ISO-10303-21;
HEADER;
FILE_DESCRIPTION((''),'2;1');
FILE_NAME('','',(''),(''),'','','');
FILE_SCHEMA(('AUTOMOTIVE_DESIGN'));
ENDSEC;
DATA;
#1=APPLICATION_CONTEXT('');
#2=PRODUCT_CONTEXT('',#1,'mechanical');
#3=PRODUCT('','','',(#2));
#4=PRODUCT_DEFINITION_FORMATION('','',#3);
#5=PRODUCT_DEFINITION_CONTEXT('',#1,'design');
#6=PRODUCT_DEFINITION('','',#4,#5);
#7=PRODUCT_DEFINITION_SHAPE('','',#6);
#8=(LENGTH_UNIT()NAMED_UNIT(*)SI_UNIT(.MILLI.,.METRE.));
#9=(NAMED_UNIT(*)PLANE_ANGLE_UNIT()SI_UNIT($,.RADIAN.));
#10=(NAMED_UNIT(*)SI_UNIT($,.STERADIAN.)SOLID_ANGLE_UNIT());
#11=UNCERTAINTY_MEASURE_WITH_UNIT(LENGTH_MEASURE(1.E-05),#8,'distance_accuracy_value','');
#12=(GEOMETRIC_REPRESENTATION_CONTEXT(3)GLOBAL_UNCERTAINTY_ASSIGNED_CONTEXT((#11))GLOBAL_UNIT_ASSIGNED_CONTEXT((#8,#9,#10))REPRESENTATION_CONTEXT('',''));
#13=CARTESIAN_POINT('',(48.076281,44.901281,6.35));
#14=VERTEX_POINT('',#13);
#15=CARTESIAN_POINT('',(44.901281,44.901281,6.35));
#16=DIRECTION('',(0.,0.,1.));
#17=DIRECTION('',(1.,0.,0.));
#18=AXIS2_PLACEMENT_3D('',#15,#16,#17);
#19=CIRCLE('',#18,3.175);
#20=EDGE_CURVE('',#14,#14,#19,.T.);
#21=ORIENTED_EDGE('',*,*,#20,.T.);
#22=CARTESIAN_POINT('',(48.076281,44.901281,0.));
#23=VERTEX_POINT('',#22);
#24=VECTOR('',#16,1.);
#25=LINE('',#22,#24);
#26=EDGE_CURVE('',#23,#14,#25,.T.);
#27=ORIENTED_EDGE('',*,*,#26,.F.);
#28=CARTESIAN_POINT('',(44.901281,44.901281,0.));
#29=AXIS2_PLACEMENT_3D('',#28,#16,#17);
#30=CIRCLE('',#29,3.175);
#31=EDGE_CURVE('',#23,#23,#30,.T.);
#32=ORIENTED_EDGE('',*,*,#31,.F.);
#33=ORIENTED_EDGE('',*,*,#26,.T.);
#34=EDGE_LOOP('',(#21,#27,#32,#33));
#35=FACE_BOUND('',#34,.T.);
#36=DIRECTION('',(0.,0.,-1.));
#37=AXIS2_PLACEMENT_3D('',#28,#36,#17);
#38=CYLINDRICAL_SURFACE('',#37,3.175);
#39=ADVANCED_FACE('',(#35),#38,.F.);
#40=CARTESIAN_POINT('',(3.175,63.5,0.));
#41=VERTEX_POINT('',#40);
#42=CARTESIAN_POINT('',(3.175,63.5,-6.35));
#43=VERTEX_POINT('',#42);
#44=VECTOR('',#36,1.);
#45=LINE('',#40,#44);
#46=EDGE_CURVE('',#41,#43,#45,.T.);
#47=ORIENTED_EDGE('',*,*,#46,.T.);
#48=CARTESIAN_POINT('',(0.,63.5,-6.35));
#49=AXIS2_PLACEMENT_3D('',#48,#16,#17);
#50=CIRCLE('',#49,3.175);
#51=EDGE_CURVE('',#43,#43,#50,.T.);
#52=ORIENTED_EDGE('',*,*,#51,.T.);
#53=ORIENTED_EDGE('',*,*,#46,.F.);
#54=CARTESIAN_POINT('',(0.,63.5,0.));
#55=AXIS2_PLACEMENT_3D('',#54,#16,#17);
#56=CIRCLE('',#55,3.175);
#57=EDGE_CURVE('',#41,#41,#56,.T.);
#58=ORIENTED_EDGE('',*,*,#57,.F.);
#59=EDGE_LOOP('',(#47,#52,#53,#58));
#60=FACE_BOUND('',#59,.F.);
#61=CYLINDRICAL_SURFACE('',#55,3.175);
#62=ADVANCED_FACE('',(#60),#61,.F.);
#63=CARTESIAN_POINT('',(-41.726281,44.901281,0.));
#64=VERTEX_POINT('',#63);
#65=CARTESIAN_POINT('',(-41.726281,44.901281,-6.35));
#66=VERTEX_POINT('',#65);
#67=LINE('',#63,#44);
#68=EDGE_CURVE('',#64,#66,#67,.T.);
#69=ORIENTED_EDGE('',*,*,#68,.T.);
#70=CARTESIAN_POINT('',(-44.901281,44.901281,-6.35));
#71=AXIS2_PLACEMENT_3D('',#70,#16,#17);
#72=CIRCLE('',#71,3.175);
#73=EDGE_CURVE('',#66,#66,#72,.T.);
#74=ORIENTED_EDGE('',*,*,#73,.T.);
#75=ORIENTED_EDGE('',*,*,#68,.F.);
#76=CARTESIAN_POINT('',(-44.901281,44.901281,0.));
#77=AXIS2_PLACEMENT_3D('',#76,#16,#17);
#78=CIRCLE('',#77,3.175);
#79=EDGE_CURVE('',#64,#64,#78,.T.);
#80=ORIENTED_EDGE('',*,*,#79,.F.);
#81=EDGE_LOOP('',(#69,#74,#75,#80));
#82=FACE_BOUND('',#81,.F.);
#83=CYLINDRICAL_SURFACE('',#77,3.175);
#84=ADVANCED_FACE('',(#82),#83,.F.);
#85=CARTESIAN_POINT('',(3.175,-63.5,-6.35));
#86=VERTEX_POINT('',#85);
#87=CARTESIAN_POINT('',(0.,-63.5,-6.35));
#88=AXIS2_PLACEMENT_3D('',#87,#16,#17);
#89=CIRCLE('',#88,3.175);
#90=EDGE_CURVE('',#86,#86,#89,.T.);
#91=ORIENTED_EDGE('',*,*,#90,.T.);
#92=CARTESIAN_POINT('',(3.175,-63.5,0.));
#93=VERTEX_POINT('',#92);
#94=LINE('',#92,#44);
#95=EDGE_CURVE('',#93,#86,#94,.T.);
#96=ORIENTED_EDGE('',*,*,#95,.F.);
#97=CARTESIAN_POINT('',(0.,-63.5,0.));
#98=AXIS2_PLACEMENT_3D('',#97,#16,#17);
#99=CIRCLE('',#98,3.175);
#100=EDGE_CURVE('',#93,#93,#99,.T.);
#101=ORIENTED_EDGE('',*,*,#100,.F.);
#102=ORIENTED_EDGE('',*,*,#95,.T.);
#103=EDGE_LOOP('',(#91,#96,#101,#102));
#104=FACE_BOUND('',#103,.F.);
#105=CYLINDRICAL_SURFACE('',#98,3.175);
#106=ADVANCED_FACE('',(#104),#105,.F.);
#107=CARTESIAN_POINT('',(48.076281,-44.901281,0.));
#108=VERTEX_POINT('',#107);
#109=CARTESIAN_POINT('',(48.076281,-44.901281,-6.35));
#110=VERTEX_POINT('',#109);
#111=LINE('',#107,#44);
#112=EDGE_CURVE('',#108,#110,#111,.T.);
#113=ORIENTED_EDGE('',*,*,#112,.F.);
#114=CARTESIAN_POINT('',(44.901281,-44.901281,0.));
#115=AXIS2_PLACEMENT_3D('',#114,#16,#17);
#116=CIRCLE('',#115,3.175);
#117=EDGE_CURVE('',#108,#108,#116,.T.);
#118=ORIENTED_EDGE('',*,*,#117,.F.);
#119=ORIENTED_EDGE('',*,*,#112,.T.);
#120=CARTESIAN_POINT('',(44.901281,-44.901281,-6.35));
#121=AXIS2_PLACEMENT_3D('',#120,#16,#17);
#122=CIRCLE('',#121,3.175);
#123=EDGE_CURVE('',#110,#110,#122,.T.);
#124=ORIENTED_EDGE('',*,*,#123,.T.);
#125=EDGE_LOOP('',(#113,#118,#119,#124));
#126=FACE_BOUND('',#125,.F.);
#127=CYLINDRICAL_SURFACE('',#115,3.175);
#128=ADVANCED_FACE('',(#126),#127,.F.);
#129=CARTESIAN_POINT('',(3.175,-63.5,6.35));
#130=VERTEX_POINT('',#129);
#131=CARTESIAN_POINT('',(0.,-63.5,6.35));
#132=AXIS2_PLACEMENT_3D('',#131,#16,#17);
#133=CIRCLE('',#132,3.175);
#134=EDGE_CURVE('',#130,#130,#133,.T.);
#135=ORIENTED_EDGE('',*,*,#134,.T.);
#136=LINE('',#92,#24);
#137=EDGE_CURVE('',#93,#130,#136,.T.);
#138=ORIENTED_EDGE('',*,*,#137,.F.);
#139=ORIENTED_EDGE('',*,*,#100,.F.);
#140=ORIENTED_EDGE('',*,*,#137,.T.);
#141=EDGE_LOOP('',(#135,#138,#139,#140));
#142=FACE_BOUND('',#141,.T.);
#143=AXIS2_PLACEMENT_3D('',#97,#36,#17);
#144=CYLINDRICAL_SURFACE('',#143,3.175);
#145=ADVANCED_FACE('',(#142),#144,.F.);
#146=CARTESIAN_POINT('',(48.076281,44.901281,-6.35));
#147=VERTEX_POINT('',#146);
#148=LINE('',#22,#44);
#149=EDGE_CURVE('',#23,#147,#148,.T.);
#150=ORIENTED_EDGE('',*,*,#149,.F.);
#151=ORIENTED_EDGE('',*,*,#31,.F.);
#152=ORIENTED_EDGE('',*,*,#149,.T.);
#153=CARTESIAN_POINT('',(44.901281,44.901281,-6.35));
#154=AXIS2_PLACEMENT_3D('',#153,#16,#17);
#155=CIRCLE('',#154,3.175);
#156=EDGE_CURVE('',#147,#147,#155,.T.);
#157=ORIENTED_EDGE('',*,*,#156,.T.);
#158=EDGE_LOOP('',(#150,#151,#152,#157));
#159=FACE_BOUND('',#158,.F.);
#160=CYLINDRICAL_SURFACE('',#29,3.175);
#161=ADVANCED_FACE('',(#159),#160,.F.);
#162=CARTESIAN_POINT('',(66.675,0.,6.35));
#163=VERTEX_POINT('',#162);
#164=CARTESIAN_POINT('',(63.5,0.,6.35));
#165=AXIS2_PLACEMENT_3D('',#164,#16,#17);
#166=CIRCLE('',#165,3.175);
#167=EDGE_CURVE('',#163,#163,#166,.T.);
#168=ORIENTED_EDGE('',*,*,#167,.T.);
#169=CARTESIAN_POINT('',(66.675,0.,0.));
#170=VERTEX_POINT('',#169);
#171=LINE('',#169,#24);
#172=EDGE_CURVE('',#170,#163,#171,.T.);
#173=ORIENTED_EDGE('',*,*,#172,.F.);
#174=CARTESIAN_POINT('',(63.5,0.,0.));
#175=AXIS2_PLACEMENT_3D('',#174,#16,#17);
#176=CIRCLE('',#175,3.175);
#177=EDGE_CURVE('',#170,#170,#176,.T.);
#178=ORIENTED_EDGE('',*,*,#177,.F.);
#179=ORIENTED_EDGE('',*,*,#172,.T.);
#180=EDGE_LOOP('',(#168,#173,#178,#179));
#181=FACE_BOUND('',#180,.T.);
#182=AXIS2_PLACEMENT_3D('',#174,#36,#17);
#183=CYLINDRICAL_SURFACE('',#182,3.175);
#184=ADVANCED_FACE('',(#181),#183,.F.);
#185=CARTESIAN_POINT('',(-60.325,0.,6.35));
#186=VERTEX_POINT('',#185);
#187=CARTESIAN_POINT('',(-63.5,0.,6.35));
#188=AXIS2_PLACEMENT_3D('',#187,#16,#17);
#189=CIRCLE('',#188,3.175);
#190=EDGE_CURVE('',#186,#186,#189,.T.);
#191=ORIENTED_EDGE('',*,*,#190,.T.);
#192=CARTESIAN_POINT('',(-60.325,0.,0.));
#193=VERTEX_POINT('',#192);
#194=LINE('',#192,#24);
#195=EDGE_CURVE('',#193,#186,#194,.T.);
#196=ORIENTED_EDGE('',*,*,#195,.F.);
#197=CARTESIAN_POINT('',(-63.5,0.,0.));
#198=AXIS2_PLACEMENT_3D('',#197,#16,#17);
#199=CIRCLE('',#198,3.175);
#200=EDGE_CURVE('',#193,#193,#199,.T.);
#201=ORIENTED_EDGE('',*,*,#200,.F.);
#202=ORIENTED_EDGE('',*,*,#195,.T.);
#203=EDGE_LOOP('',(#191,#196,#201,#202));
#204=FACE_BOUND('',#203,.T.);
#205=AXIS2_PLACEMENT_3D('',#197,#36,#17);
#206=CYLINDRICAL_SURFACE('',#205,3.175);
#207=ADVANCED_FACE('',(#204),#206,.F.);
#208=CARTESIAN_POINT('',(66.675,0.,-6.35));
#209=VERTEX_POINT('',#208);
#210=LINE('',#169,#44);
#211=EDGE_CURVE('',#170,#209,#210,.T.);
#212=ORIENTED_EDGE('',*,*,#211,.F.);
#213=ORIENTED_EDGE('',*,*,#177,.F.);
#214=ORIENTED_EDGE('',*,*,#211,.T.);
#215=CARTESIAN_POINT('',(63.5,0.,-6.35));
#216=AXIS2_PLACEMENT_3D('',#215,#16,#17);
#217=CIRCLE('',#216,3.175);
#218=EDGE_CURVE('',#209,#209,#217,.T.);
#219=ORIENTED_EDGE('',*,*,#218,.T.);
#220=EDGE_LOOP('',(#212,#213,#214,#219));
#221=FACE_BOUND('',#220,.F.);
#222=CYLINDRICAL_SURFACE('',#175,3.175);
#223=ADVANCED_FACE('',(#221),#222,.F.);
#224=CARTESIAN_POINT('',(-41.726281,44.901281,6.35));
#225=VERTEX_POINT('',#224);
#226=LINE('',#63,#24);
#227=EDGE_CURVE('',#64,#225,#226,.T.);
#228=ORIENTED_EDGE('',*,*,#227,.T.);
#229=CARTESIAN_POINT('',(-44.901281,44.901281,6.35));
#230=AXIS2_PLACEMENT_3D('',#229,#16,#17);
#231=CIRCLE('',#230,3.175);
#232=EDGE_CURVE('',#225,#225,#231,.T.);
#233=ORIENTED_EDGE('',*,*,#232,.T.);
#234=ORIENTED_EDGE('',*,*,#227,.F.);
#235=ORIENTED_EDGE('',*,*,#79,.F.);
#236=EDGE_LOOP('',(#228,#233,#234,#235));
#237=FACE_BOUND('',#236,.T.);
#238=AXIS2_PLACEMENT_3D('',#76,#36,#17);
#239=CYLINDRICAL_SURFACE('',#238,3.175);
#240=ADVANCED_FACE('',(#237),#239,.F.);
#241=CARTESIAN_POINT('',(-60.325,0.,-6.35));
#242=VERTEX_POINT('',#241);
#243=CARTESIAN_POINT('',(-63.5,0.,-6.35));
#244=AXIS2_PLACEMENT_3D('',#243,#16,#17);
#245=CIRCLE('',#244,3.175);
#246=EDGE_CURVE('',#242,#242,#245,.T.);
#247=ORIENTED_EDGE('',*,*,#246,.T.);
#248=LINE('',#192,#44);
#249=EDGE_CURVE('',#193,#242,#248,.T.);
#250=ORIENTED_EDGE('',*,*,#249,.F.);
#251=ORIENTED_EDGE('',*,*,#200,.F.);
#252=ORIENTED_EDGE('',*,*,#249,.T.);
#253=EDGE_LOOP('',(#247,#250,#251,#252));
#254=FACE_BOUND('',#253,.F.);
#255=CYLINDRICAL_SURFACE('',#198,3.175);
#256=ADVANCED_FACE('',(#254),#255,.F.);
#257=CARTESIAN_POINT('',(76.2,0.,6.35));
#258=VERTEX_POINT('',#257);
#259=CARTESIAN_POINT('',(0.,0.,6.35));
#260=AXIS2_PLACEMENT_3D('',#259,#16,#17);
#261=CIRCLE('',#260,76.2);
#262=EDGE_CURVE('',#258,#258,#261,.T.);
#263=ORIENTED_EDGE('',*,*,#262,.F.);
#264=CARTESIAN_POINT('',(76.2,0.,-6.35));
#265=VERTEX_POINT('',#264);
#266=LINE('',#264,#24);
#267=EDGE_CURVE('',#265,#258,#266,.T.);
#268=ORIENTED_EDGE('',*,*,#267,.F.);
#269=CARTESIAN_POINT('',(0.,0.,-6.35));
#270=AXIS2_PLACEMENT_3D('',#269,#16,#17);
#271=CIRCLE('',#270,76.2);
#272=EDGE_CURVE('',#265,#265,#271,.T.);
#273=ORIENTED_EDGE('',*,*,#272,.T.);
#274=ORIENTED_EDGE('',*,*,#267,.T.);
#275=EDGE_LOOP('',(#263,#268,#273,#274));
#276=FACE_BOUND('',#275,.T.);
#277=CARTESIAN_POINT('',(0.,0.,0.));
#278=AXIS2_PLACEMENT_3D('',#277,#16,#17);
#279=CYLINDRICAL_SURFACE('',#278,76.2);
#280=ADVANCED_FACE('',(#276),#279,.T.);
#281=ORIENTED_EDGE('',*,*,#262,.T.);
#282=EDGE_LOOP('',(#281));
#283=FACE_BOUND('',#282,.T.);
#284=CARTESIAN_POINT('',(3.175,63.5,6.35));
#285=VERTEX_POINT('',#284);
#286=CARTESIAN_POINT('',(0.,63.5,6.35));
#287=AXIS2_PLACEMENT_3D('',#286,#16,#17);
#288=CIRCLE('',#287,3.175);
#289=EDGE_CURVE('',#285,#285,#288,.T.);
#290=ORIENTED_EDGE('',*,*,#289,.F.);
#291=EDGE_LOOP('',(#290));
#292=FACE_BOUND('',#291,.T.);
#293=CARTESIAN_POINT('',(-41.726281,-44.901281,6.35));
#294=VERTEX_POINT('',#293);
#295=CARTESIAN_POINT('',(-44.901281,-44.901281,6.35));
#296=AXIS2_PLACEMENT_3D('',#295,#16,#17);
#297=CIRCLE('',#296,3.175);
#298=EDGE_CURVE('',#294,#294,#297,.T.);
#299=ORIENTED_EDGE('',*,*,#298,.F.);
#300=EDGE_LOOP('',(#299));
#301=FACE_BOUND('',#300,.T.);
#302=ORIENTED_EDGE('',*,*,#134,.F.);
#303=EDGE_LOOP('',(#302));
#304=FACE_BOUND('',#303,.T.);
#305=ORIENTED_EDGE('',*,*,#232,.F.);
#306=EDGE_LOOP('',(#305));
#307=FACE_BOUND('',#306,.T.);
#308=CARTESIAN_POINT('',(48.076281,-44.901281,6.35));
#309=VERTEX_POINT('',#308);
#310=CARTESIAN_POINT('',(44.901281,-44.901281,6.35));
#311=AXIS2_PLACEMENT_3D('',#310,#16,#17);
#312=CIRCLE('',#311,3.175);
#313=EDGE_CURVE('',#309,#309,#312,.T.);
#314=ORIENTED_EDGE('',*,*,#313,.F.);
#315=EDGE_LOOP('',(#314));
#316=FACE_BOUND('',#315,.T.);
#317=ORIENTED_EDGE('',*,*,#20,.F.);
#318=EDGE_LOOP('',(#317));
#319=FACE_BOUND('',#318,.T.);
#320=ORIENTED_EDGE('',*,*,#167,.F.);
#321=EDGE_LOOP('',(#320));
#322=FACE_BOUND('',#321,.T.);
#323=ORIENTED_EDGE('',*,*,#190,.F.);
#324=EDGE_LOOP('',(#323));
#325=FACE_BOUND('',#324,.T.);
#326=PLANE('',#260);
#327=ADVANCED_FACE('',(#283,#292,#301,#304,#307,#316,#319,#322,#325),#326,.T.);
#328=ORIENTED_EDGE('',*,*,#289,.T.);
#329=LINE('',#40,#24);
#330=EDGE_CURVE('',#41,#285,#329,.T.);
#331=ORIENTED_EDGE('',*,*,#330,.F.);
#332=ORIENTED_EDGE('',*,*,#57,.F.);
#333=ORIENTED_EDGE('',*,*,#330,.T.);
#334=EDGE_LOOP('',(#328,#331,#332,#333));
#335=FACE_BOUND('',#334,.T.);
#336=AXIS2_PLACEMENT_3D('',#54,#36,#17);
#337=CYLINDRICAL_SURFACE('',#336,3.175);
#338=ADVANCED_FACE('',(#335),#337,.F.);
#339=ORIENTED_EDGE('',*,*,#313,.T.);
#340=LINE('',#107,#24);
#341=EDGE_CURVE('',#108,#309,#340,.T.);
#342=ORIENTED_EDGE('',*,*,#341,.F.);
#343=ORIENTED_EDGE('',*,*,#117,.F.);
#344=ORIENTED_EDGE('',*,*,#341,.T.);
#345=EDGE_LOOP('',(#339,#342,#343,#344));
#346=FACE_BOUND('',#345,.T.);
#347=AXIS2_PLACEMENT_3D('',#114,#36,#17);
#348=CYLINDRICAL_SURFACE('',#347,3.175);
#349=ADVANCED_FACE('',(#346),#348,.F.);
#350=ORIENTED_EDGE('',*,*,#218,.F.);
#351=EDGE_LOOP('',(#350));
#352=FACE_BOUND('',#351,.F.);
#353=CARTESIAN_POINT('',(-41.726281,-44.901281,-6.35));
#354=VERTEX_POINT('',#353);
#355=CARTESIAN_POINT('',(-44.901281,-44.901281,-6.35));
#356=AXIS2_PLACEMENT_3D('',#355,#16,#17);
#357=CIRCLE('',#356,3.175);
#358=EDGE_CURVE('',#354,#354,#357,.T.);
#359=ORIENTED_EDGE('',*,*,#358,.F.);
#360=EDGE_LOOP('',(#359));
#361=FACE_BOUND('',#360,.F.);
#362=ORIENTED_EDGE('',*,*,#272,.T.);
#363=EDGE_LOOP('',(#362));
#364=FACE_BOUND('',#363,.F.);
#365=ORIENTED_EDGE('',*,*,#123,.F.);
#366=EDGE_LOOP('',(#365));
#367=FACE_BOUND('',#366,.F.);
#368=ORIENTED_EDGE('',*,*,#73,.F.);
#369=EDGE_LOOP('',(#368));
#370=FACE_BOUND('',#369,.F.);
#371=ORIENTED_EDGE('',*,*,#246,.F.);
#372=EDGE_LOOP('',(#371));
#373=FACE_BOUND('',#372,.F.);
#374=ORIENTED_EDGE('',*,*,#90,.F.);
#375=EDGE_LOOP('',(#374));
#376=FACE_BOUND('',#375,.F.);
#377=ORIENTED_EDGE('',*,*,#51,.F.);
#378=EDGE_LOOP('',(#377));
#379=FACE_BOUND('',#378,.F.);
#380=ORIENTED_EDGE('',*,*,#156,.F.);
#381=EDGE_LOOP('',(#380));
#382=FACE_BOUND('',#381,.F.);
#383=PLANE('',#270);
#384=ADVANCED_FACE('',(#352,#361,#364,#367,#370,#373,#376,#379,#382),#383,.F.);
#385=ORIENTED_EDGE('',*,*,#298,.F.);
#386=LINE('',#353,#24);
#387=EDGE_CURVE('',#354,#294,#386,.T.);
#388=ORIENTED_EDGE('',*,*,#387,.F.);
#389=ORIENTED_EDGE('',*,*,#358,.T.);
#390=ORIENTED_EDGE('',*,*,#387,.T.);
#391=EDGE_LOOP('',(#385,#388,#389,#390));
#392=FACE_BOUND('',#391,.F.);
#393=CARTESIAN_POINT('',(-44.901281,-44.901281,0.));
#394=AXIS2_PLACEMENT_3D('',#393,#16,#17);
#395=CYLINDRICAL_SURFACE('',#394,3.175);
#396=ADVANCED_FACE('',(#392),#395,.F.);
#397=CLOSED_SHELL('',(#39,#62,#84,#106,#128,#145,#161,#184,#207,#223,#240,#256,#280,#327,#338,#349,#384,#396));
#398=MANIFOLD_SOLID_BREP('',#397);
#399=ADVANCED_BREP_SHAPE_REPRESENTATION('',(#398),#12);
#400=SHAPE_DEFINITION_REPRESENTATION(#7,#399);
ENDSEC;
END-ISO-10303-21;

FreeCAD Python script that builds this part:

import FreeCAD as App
import Part
import Sketcher
Q = App.Units.Quantity

doc = App.newDocument("Part")
body = doc.addObject("PartDesign::Body", "Body")

sketch1 = doc.addObject("Sketcher::SketchObject", "Sketch")
body.addObject(sketch1)
sketch1.AttachmentSupport = (doc.XY_Plane, [""])
sketch1.MapMode = "FlatFace"
sketch1.addGeometry(Part.Circle(App.Vector(0, 0, 0), App.Vector(0, 0, 1), 76), False)
sketch1.addConstraint([
    Sketcher.Constraint("Coincident", 0, 3, -1, 1),
    Sketcher.Constraint("Diameter", 0, Q("6 in")),
])
pad1 = doc.addObject("PartDesign::Pad", "Pad")
body.addObject(pad1)
pad1.Profile = sketch1
pad1.Length = Q("0.5 in")
pad1.Midplane = True

sketch2 = doc.addObject("Sketcher::SketchObject", "Sketch001")
body.addObject(sketch2)
sketch2.AttachmentSupport = (doc.XY_Plane, [""])
sketch2.MapMode = "FlatFace"
sketch2.addGeometry([
    Part.Circle(App.Vector(0, 63.5, 0), App.Vector(0, 0, 1), 3.2),
    Part.Circle(App.Vector(63.5, 0, 0), App.Vector(0, 0, 1), 3.2),
    Part.Circle(App.Vector(-63.5, 0, 0), App.Vector(0, 0, 1), 3.2),
    Part.Circle(App.Vector(0, -63.5, 0), App.Vector(0, 0, 1), 3.2),
    Part.Circle(App.Vector(-44.9, 44.9, 0), App.Vector(0, 0, 1), 3.2),
    Part.Circle(App.Vector(44.9, 44.9, 0), App.Vector(0, 0, 1), 3.2),
    Part.Circle(App.Vector(44.9, -44.9, 0), App.Vector(0, 0, 1), 3.2),
    Part.Circle(App.Vector(-44.9, -44.9, 0), App.Vector(0, 0, 1), 3.2),
], False)
sketch2.addConstraint([
    Sketcher.Constraint("Equal", 0, 1),
    Sketcher.Constraint("Equal", 1, 2),
    Sketcher.Constraint("Equal", 2, 3),
    Sketcher.Constraint("Equal", 3, 4),
    Sketcher.Constraint("Equal", 4, 5),
    Sketcher.Constraint("Equal", 5, 6),
    Sketcher.Constraint("Equal", 6, 7),
    Sketcher.Constraint("Symmetric", 1, 3, 2, 3, -1, 1),
    Sketcher.Constraint("Symmetric", 0, 3, 3, 3, -1, 1),
    Sketcher.Constraint("Symmetric", 4, 3, 6, 3, -1, 1),
    Sketcher.Constraint("Symmetric", 5, 3, 7, 3, -1, 1),
    Sketcher.Constraint("Symmetric", 4, 3, 5, 3, -2),
    Sketcher.Constraint("PointOnObject", 0, 3, -2),
    Sketcher.Constraint("PointOnObject", 1, 3, -1),
    Sketcher.Constraint("Diameter", 0, Q("0.25 in")),
    Sketcher.Constraint("DistanceX", 2, 3, 1, 3, Q("5 in")),
    Sketcher.Constraint("DistanceY", 3, 3, 0, 3, Q("5 in")),
    Sketcher.Constraint("DistanceX", 4, 3, -1, 1, Q("44.901281 mm")),
    Sketcher.Constraint("DistanceY", -1, 1, 4, 3, Q("44.901281 mm")),
])
pocket1 = doc.addObject("PartDesign::Pocket", "Pocket")
body.addObject(pocket1)
pocket1.Profile = sketch2
pocket1.Length = Q("0.5 in")
pocket1.Midplane = True

doc.recompute()
